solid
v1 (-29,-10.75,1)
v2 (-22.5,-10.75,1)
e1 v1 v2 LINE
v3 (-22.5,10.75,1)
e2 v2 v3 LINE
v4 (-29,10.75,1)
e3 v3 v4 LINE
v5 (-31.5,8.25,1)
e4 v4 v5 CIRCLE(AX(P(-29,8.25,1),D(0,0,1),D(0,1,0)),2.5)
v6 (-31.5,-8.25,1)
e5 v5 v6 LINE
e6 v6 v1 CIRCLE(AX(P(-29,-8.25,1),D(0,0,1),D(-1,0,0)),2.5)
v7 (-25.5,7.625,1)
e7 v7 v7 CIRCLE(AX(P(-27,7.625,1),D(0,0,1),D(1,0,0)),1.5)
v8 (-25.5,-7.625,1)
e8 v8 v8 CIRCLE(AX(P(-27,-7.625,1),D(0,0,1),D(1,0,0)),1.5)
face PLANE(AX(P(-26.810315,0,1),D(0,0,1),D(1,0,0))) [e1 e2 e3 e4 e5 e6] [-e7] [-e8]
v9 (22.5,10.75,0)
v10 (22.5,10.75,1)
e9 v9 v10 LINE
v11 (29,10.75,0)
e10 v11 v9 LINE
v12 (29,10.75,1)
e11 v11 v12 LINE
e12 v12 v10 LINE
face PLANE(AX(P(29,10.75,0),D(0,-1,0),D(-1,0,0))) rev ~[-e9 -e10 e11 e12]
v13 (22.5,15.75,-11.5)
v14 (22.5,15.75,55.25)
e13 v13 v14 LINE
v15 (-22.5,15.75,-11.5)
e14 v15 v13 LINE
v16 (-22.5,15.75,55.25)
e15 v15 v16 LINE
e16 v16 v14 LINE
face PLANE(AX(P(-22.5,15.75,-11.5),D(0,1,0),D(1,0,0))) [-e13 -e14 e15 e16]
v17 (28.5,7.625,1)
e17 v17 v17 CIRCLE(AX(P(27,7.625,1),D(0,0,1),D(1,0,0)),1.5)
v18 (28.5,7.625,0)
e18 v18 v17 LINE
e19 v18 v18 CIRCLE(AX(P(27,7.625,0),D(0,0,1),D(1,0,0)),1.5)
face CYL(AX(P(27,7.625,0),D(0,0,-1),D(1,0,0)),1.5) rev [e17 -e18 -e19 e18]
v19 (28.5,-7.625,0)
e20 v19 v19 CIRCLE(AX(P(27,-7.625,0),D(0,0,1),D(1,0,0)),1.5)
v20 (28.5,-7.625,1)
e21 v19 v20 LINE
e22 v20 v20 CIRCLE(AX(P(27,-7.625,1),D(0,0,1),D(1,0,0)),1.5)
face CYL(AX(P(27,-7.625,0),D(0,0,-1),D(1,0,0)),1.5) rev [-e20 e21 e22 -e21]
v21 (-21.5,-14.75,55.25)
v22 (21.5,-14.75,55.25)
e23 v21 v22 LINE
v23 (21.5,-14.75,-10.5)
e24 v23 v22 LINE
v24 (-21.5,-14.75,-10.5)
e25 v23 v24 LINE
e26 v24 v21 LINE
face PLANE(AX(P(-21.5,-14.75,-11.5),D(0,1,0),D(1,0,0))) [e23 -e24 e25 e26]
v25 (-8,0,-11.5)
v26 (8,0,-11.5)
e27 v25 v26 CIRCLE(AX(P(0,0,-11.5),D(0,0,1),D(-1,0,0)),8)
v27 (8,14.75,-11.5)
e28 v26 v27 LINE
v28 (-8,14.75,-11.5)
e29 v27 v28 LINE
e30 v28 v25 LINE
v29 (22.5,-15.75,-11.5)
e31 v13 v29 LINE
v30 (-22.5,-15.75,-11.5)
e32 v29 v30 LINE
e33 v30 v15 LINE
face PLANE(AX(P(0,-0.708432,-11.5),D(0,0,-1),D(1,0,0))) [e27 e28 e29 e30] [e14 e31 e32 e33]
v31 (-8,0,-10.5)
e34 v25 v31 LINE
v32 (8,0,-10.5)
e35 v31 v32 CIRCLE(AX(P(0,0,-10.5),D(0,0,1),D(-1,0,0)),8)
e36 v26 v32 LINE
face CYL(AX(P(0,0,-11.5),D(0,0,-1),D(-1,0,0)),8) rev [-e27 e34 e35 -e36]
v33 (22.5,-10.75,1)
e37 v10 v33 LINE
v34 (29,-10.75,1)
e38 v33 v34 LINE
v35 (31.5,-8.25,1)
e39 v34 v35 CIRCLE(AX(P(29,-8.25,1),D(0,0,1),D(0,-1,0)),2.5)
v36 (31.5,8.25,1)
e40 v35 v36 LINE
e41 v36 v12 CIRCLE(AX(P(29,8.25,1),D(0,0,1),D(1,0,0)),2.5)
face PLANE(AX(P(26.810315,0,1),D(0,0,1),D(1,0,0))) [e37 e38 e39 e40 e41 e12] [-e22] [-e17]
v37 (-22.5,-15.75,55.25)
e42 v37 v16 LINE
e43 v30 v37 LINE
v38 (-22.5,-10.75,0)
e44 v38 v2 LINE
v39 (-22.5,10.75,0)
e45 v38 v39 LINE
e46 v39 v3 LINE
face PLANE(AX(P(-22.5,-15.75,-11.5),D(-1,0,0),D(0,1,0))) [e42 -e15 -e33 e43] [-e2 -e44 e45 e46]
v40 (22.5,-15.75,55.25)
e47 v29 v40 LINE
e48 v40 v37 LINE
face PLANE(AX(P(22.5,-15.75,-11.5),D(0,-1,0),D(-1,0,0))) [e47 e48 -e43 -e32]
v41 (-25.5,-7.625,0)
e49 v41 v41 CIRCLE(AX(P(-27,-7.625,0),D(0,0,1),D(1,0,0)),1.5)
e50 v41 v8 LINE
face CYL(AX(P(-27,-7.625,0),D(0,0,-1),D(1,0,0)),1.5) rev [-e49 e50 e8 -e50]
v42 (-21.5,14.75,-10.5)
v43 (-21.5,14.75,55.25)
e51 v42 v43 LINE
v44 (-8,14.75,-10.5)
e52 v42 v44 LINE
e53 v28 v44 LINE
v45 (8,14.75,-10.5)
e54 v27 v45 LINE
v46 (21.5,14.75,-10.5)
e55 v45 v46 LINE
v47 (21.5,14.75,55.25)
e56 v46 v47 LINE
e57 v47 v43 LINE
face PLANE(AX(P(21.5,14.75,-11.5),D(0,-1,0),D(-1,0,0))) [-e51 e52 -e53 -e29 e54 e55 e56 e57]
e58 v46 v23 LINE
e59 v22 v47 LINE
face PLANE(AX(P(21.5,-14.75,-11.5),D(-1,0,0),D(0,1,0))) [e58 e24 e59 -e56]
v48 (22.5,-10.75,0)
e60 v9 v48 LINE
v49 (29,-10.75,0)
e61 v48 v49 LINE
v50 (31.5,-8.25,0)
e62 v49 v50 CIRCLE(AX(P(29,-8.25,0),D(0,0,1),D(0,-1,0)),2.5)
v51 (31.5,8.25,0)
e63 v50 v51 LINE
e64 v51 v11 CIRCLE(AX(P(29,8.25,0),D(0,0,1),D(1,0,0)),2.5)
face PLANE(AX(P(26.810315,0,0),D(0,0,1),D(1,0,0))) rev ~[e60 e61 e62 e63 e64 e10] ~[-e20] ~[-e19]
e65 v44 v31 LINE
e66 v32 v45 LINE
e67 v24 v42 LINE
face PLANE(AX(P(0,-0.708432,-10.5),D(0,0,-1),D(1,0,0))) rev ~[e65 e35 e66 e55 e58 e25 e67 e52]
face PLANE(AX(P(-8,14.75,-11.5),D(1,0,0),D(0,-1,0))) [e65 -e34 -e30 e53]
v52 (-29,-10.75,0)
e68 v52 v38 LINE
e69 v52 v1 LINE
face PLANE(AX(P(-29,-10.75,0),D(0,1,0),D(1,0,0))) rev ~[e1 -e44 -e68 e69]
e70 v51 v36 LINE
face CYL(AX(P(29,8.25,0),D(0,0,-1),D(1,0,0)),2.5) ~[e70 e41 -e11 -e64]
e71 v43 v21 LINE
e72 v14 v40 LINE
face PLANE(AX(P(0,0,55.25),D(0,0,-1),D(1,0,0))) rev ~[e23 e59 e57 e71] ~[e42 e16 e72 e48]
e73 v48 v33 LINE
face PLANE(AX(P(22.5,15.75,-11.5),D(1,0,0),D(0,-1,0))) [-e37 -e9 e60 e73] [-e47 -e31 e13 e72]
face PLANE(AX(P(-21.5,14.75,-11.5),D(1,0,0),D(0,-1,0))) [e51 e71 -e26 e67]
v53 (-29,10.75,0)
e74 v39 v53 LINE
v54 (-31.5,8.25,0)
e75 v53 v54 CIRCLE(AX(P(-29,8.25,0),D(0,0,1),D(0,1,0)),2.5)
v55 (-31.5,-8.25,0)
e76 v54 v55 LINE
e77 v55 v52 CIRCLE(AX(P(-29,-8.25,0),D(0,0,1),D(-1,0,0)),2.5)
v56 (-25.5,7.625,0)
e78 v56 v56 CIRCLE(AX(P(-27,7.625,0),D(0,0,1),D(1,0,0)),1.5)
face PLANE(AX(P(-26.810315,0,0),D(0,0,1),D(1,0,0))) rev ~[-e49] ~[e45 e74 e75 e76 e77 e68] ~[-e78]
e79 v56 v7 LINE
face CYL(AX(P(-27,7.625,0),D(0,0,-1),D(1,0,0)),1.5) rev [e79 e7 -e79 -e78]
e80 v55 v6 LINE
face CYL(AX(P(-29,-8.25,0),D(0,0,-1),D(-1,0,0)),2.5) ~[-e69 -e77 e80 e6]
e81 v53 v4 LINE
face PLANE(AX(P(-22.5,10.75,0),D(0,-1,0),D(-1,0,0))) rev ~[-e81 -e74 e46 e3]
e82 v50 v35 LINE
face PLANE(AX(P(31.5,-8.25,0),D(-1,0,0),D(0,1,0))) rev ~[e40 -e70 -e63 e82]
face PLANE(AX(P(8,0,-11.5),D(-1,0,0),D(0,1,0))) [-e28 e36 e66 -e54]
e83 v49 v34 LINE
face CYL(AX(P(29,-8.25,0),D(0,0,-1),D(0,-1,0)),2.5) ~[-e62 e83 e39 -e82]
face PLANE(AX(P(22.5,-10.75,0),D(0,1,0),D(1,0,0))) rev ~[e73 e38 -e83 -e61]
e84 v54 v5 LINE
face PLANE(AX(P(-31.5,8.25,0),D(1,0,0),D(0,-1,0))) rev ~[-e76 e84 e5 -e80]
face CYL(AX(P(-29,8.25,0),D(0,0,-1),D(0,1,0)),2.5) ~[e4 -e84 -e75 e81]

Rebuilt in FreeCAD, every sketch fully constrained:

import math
import FreeCAD as App
import Part
import Sketcher

V = App.Vector
Q = App.Units.Quantity

doc = App.newDocument("Part")
params = doc.addObject("Spreadsheet::Sheet", "Params")
for row, (alias, value) in enumerate([
    ("sketch1_diameter", "3 mm"),
    ("sketch1_radius", "2.5 mm"),
    ("sketch1_width", "6.5 mm"),
    ("sketch1_height", "16.5 mm"),
    ("pad1_length", "1 mm"),
    ("sketch2_diameter", "3 mm"),
    ("sketch2_radius", "2.5 mm"),
    ("sketch2_width", "6.5 mm"),
    ("sketch2_height", "21.5 mm"),
    ("pad2_length", "1 mm"),
    ("sketch3_width", "45 mm"),
    ("sketch3_width2", "43 mm"),
    ("sketch3_height", "31.5 mm"),
    ("sketch3_height2", "29.5 mm"),
    ("pad3_length", "66.75 mm"),
    ("sketch4_radius", "8 mm"),
    ("sketch4_width", "43 mm"),
    ("sketch4_height", "29.5 mm"),
    ("pad4_length", "1 mm"),
], start=1):
    params.set(f"A{row}", alias)
    params.set(f"B{row}", "=" + value)
    params.setAlias(f"B{row}", alias)

body = doc.addObject("PartDesign::Body", "Body")

sketch1 = doc.addObject("Sketcher::SketchObject", "Sketch")
body.addObject(sketch1)
sketch1.AttachmentSupport = (doc.XY_Plane, [""])
sketch1.MapMode = "FlatFace"
sketch1.addGeometry([
    Part.ArcOfCircle(Part.Circle(V(-29, 8.2, 0), V(0, 0, 1), 2.5), math.radians(90), math.radians(180)),
    Part.LineSegment(V(-31.5, 8.2, 0), V(-31.5, -8.2, 0)),
    Part.ArcOfCircle(Part.Circle(V(-29, -8.2, 0), V(0, 0, 1), 2.5), math.radians(180), math.radians(270)),
    Part.LineSegment(V(-29, -10.8, 0), V(-22.5, -10.8, 0)),
    Part.LineSegment(V(-22.5, -10.8, 0), V(-22.5, 10.8, 0)),
    Part.LineSegment(V(-22.5, 10.8, 0), V(-29, 10.8, 0)),
    Part.Circle(V(-27, -7.6, 0), V(0, 0, 1), 1.5),
    Part.Circle(V(-27, 7.6, 0), V(0, 0, 1), 1.5),
], False)
sketch1.addConstraint([
    Sketcher.Constraint("Tangent", 0, 2, 1, 1),
    Sketcher.Constraint("Tangent", 1, 2, 2, 1),
    Sketcher.Constraint("Tangent", 2, 2, 3, 1),
    Sketcher.Constraint("Coincident", 3, 2, 4, 1),
    Sketcher.Constraint("Coincident", 4, 2, 5, 1),
    Sketcher.Constraint("Tangent", 5, 2, 0, 1),
    Sketcher.Constraint("Vertical", 1),
    Sketcher.Constraint("Horizontal", 3),
    Sketcher.Constraint("Vertical", 4),
    Sketcher.Constraint("Horizontal", 5),
    Sketcher.Constraint("Equal", 0, 2),
    Sketcher.Constraint("Equal", 6, 7),
    Sketcher.Constraint("Symmetric", 6, 3, 7, 3, -1),
    Sketcher.Constraint("Diameter", 6, Q("3 mm")),
    Sketcher.Constraint("Radius", 0, Q("2.5 mm")),
    Sketcher.Constraint("DistanceX", 3, 1, 3, 2, Q("6.5 mm")),
    Sketcher.Constraint("DistanceY", 1, 2, 1, 1, Q("16.5 mm")),
    Sketcher.Constraint("DistanceX", 0, 3, -1, 1, Q("29 mm")),
    Sketcher.Constraint("DistanceX", 6, 3, -1, 1, Q("27 mm")),
    Sketcher.Constraint("DistanceY", -1, 1, 0, 3, Q("8.25 mm")),
    Sketcher.Constraint("DistanceY", 6, 3, 7, 3, Q("15.25 mm")),
])
sketch1.setExpression("Constraints[13]", "Params.sketch1_diameter")
sketch1.setExpression("Constraints[14]", "Params.sketch1_radius")
sketch1.setExpression("Constraints[15]", "Params.sketch1_width")
sketch1.setExpression("Constraints[16]", "Params.sketch1_height")
pad1 = doc.addObject("PartDesign::Pad", "Pad")
body.addObject(pad1)
pad1.Profile = sketch1
pad1.setExpression("Length", "Params.pad1_length")
body2 = doc.addObject("PartDesign::Body", "Body001")

sketch2 = doc.addObject("Sketcher::SketchObject", "Sketch001")
body2.addObject(sketch2)
sketch2.AttachmentSupport = (doc.getObject("XY_Plane001"), [""])
sketch2.MapMode = "FlatFace"
sketch2.addGeometry([
    Part.LineSegment(V(29, 10.8, 0), V(22.5, 10.8, 0)),
    Part.LineSegment(V(22.5, 10.8, 0), V(22.5, -10.8, 0)),
    Part.LineSegment(V(22.5, -10.8, 0), V(29, -10.8, 0)),
    Part.ArcOfCircle(Part.Circle(V(29, -8.2, 0), V(0, 0, 1), 2.5), math.radians(-90), math.radians(0)),
    Part.LineSegment(V(31.5, -8.2, 0), V(31.5, 8.2, 0)),
    Part.ArcOfCircle(Part.Circle(V(29, 8.2, 0), V(0, 0, 1), 2.5), math.radians(0), math.radians(90)),
    Part.Circle(V(27, -7.6, 0), V(0, 0, 1), 1.5),
    Part.Circle(V(27, 7.6, 0), V(0, 0, 1), 1.5),
], False)
sketch2.addConstraint([
    Sketcher.Constraint("Coincident", 0, 2, 1, 1),
    Sketcher.Constraint("Coincident", 1, 2, 2, 1),
    Sketcher.Constraint("Tangent", 2, 2, 3, 1),
    Sketcher.Constraint("Tangent", 3, 2, 4, 1),
    Sketcher.Constraint("Tangent", 4, 2, 5, 1),
    Sketcher.Constraint("Tangent", 5, 2, 0, 1),
    Sketcher.Constraint("Horizontal", 0),
    Sketcher.Constraint("Vertical", 1),
    Sketcher.Constraint("Horizontal", 2),
    Sketcher.Constraint("Vertical", 4),
    Sketcher.Constraint("Equal", 3, 5),
    Sketcher.Constraint("Equal", 6, 7),
    Sketcher.Constraint("Symmetric", 6, 3, 7, 3, -1),
    Sketcher.Constraint("Diameter", 6, Q("3 mm")),
    Sketcher.Constraint("Radius", 3, Q("2.5 mm")),
    Sketcher.Constraint("DistanceX", 0, 2, 0, 1, Q("6.5 mm")),
    Sketcher.Constraint("DistanceY", 1, 2, 1, 1, Q("21.5 mm")),
    Sketcher.Constraint("DistanceX", -1, 1, 3, 3, Q("29 mm")),
    Sketcher.Constraint("DistanceX", -1, 1, 6, 3, Q("27 mm")),
    Sketcher.Constraint("DistanceY", 3, 3, -1, 1, Q("8.25 mm")),
    Sketcher.Constraint("DistanceY", 6, 3, 7, 3, Q("15.25 mm")),
])
sketch2.setExpression("Constraints[13]", "Params.sketch2_diameter")
sketch2.setExpression("Constraints[14]", "Params.sketch2_radius")
sketch2.setExpression("Constraints[15]", "Params.sketch2_width")
sketch2.setExpression("Constraints[16]", "Params.sketch2_height")
pad2 = doc.addObject("PartDesign::Pad", "Pad001")
body2.addObject(pad2)
pad2.Profile = sketch2
pad2.setExpression("Length", "Params.pad2_length")
body.AllowCompound = True
doc.recompute()

boolean = doc.addObject("PartDesign::Boolean", "Boolean")
body.addObject(boolean)
boolean.Type = "Fuse"
boolean.addObjects([body2])

sketch3 = doc.addObject("Sketcher::SketchObject", "Sketch002")
body.addObject(sketch3)
sketch3.AttachmentSupport = (doc.XY_Plane, [""])
sketch3.MapMode = "FlatFace"
sketch3.AttachmentOffset = App.Placement(V(0, 0, -11.5), App.Rotation())
sketch3.addGeometry([
    Part.LineSegment(V(-22, 16, 0), V(22, 16, 0)),
    Part.LineSegment(V(22, 16, 0), V(22, -16, 0)),
    Part.LineSegment(V(22, -16, 0), V(-22, -16, 0)),
    Part.LineSegment(V(-22, -16, 0), V(-22, 16, 0)),
    Part.LineSegment(V(22, 15, 0), V(-22, 15, 0)),
    Part.LineSegment(V(-22, 15, 0), V(-22, -15, 0)),
    Part.LineSegment(V(-22, -15, 0), V(22, -15, 0)),
    Part.LineSegment(V(22, -15, 0), V(22, 15, 0)),
], False)
sketch3.addConstraint([
    Sketcher.Constraint("Coincident", 0, 2, 1, 1),
    Sketcher.Constraint("Coincident", 1, 2, 2, 1),
    Sketcher.Constraint("Coincident", 2, 2, 3, 1),
    Sketcher.Constraint("Coincident", 3, 2, 0, 1),
    Sketcher.Constraint("Coincident", 4, 2, 5, 1),
    Sketcher.Constraint("Coincident", 5, 2, 6, 1),
    Sketcher.Constraint("Coincident", 6, 2, 7, 1),
    Sketcher.Constraint("Coincident", 7, 2, 4, 1),
    Sketcher.Constraint("Horizontal", 0),
    Sketcher.Constraint("Vertical", 1),
    Sketcher.Constraint("Horizontal", 2),
    Sketcher.Constraint("Vertical", 3),
    Sketcher.Constraint("Horizontal", 4),
    Sketcher.Constraint("Vertical", 5),
    Sketcher.Constraint("Horizontal", 6),
    Sketcher.Constraint("Vertical", 7),
    Sketcher.Constraint("Symmetric", 0, 2, 2, 2, -1, 1),
    Sketcher.Constraint("Symmetric", 4, 2, 6, 2, -1, 1),
    Sketcher.Constraint("DistanceX", 0, 1, 0, 2, Q("45 mm")),
    Sketcher.Constraint("DistanceX", 4, 2, 4, 1, Q("43 mm")),
    Sketcher.Constraint("DistanceY", 1, 2, 1, 1, Q("31.5 mm")),
    Sketcher.Constraint("DistanceY", 5, 2, 5, 1, Q("29.5 mm")),
])
sketch3.setExpression("Constraints[18]", "Params.sketch3_width")
sketch3.setExpression("Constraints[19]", "Params.sketch3_width2")
sketch3.setExpression("Constraints[20]", "Params.sketch3_height")
sketch3.setExpression("Constraints[21]", "Params.sketch3_height2")
pad3 = doc.addObject("PartDesign::Pad", "Pad002")
body.addObject(pad3)
pad3.Profile = sketch3
pad3.setExpression("Length", "Params.pad3_length")

sketch4 = doc.addObject("Sketcher::SketchObject", "Sketch003")
body.addObject(sketch4)
sketch4.AttachmentSupport = (doc.XY_Plane, [""])
sketch4.MapMode = "FlatFace"
sketch4.AttachmentOffset = App.Placement(V(0, 0, -11.5), App.Rotation())
sketch4.addGeometry([
    Part.LineSegment(V(-22, 15, 0), V(-8, 15, 0)),
    Part.LineSegment(V(-8, 15, 0), V(-8, 0, 0)),
    Part.ArcOfCircle(Part.Circle(V(0, 0, 0), V(0, 0, 1), 8), math.radians(180), math.radians(360)),
    Part.LineSegment(V(8, 0, 0), V(8, 15, 0)),
    Part.LineSegment(V(8, 15, 0), V(22, 15, 0)),
    Part.LineSegment(V(22, 15, 0), V(22, -15, 0)),
    Part.LineSegment(V(22, -15, 0), V(-22, -15, 0)),
    Part.LineSegment(V(-22, -15, 0), V(-22, 15, 0)),
], False)
sketch4.addConstraint([
    Sketcher.Constraint("Coincident", 0, 2, 1, 1),
    Sketcher.Constraint("Tangent", 1, 2, 2, 1),
    Sketcher.Constraint("Tangent", 2, 2, 3, 1),
    Sketcher.Constraint("Coincident", 3, 2, 4, 1),
    Sketcher.Constraint("Coincident", 4, 2, 5, 1),
    Sketcher.Constraint("Coincident", 5, 2, 6, 1),
    Sketcher.Constraint("Coincident", 6, 2, 7, 1),
    Sketcher.Constraint("Coincident", 7, 2, 0, 1),
    Sketcher.Constraint("Horizontal", 0),
    Sketcher.Constraint("Vertical", 1),
    Sketcher.Constraint("Vertical", 3),
    Sketcher.Constraint("Horizontal", 4),
    Sketcher.Constraint("Vertical", 5),
    Sketcher.Constraint("Horizontal", 6),
    Sketcher.Constraint("Vertical", 7),
    Sketcher.Constraint("Coincident", 2, 3, -1, 1),
    Sketcher.Constraint("Symmetric", 4, 2, 6, 2, -1, 1),
    Sketcher.Constraint("Horizontal", 0, 2, 3, 2),
    Sketcher.Constraint("Radius", 2, Q("8 mm")),
    Sketcher.Constraint("DistanceX", 6, 2, 6, 1, Q("43 mm")),
    Sketcher.Constraint("DistanceY", 5, 2, 5, 1, Q("29.5 mm")),
])
sketch4.setExpression("Constraints[18]", "Params.sketch4_radius")
sketch4.setExpression("Constraints[19]", "Params.sketch4_width")
sketch4.setExpression("Constraints[20]", "Params.sketch4_height")
pad4 = doc.addObject("PartDesign::Pad", "Pad003")
body.addObject(pad4)
pad4.Profile = sketch4
pad4.setExpression("Length", "Params.pad4_length")

doc.recompute()
